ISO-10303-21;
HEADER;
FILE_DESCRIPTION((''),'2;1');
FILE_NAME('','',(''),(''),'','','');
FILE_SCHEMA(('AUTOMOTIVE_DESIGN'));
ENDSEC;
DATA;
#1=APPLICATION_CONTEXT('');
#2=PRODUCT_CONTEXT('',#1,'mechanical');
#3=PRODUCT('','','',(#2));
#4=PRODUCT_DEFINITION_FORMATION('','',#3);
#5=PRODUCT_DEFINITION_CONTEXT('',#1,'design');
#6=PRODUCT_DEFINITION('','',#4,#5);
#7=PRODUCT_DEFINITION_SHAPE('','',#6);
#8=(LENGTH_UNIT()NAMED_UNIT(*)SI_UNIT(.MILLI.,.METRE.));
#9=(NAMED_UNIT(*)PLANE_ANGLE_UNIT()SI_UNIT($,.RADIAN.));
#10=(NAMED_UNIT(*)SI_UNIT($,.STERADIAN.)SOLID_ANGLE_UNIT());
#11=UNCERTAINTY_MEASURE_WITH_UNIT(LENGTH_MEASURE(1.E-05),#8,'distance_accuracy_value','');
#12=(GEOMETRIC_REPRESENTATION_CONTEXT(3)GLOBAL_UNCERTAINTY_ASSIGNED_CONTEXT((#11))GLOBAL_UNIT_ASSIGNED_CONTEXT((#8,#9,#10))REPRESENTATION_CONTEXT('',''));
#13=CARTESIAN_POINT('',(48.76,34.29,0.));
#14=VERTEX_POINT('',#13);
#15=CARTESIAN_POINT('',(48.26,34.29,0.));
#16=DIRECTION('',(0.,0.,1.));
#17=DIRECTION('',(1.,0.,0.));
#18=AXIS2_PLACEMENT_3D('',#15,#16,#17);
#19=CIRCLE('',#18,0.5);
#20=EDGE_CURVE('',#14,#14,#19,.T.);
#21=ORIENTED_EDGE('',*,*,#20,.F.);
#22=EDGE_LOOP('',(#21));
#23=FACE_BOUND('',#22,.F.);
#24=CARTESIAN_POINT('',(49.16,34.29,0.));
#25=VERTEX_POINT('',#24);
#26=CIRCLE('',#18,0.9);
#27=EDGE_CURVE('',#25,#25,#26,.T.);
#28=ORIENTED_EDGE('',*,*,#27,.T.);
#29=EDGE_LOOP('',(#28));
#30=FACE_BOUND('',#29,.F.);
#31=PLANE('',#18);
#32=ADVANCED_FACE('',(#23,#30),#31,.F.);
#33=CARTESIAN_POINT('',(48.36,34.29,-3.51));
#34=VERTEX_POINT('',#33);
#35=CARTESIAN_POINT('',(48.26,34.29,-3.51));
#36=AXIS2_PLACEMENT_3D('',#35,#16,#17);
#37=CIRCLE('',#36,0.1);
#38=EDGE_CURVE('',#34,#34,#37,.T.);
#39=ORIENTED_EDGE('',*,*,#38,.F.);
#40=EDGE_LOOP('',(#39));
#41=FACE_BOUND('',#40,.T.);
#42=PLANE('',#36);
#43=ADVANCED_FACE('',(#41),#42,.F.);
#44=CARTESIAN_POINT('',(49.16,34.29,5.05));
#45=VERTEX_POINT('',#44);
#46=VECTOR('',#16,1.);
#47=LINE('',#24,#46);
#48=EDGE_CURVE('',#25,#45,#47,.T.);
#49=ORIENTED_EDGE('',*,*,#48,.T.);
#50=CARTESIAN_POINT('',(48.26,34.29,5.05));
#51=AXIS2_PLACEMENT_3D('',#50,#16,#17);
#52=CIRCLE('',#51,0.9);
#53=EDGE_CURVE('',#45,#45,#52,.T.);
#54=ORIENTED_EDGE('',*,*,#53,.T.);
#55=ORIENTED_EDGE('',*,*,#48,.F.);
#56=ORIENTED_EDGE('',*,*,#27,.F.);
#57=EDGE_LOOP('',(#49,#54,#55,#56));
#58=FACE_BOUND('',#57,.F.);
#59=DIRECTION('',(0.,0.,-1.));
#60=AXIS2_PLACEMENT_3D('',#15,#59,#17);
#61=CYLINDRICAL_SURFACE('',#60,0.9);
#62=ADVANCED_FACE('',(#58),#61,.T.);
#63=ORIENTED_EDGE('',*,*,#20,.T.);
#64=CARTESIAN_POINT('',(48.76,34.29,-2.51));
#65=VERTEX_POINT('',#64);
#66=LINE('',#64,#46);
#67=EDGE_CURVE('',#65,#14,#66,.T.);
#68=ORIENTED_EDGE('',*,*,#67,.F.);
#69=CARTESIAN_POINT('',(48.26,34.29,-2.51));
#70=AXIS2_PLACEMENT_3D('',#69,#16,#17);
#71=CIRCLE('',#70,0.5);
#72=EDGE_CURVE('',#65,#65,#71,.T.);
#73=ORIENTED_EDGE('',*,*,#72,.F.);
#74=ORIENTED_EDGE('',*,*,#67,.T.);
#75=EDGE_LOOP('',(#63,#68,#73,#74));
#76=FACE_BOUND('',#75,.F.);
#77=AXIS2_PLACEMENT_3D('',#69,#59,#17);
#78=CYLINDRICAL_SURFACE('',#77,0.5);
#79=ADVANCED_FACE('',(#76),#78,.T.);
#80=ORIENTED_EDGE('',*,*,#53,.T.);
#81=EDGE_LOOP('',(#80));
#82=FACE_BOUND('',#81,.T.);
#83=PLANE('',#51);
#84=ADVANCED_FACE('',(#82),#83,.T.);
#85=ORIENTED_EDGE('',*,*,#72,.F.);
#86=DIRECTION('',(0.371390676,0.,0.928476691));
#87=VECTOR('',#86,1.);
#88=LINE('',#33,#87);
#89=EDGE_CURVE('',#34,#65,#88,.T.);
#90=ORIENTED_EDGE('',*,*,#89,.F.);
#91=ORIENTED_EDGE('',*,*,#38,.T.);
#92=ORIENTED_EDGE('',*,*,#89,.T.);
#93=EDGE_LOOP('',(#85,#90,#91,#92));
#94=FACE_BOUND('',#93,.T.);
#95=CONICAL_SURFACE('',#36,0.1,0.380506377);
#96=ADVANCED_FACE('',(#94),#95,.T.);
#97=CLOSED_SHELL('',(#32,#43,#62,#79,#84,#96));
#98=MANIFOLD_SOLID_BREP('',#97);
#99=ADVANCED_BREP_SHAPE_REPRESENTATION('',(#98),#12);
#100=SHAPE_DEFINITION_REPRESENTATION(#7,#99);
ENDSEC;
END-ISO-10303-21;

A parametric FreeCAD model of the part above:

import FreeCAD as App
import Part
import Sketcher

V = App.Vector

doc = App.newDocument("Part")
body = doc.addObject("PartDesign::Body", "Body")

# Sketch on XY plane
sketch1 = body.newObject("Sketcher::SketchObject", "Sketch")
sketch1.AttachmentSupport = (doc.getObject("XY_Plane"), [""])
sketch1.MapMode = "FlatFace"
sketch1.AttachmentOffset = App.Placement(V(0, 0, -2.51), App.Rotation())
sketch1.addGeometry(Part.Circle(V(2.5, 0, 0), V(0, 0, 1), 0.5), False)
sketch1.addConstraint([
    Sketcher.Constraint("PointOnObject", 0, 3, -1),
    Sketcher.Constraint("Diameter", 0, 1.0),
    Sketcher.Constraint("DistanceX", -1, 1, 0, 3, 2.54),
])
pad1 = body.newObject("PartDesign::Pad", "Pad")
pad1.Profile = sketch1
pad1.Length = 2.51
body2 = doc.addObject("PartDesign::Body", "Body001")

# Sketch on XZ plane
sketch2 = body2.newObject("Sketcher::SketchObject", "Sketch001")
sketch2.AttachmentSupport = (doc.getObject("XZ_Plane001"), [""])
sketch2.MapMode = "FlatFace"
sketch2.addGeometry([
    Part.LineSegment(V(2.54, -3.51, 0), V(2.64, -3.51, 0)),
    Part.LineSegment(V(2.64, -3.51, 0), V(3.04, -2.51, 0)),
    Part.LineSegment(V(3.04, -2.51, 0), V(2.54, -2.51, 0)),
    Part.LineSegment(V(2.54, -2.51, 0), V(2.54, -3.51, 0)),
], False)
sketch2.addGeometry(Part.LineSegment(V(2.54, -3.51, 0), V(2.54, -2.51, 0)), True)  # axis
sketch2.addConstraint([
    Sketcher.Constraint("Coincident", 0, 2, 1, 1),
    Sketcher.Constraint("Coincident", 1, 2, 2, 1),
    Sketcher.Constraint("Coincident", 2, 2, 3, 1),
    Sketcher.Constraint("Coincident", 3, 2, 0, 1),
    Sketcher.Constraint("Horizontal", 0),
    Sketcher.Constraint("Horizontal", 2),
    Sketcher.Constraint("Vertical", 3),
    Sketcher.Constraint("Vertical", 4),
    Sketcher.Constraint("Coincident", 4, 1, 3, 2),
    Sketcher.Constraint("Horizontal", 1, 2, 4, 2),
    Sketcher.Constraint("DistanceY", 3, 2, 3, 1, 1.0),
    Sketcher.Constraint("DistanceX", 0, 1, 0, 2, 0.1),
    Sketcher.Constraint("DistanceX", 2, 2, 2, 1, 0.5),
    Sketcher.Constraint("DistanceX", -1, 1, 0, 2, 2.64),
    Sketcher.Constraint("DistanceY", 0, 2, -1, 1, 3.51),
])
revolution = body2.newObject("PartDesign::Revolution", "Revolution")
revolution.Profile = sketch2
revolution.ReferenceAxis = (sketch2, ["Axis0"])
revolution.Angle = 360
body3 = doc.addObject("PartDesign::Body", "Body002")

# Sketch on XY plane
sketch3 = body3.newObject("Sketcher::SketchObject", "Sketch002")
sketch3.AttachmentSupport = (doc.getObject("XY_Plane002"), [""])
sketch3.MapMode = "FlatFace"
sketch3.addGeometry(Part.Circle(V(2.5, 0, 0), V(0, 0, 1), 0.9), False)
sketch3.addConstraint([
    Sketcher.Constraint("PointOnObject", 0, 3, -1),
    Sketcher.Constraint("Diameter", 0, 1.8),
    Sketcher.Constraint("DistanceX", -1, 1, 0, 3, 2.54),
])
pad2 = body3.newObject("PartDesign::Pad", "Pad001")
pad2.Profile = sketch3
pad2.Length = 5.05
doc.recompute()

boolean = body3.newObject("PartDesign::Boolean", "Boolean")
boolean.Type = "Fuse"
boolean.addObjects([body])
doc.recompute()

boolean2 = body3.newObject("PartDesign::Boolean", "Boolean001")
boolean2.Type = "Fuse"
boolean2.addObjects([body2])
body4 = doc.addObject("PartDesign::Body", "Body003")
doc.recompute()

body3.Placement = App.Placement(V(45.72, 34.29, 0), App.Rotation(V(0, 0, 1), 0))
boolean3 = body4.newObject("PartDesign::Boolean", "Boolean002")
boolean3.Type = "Fuse"
boolean3.addObjects([body3])

doc.recompute()
